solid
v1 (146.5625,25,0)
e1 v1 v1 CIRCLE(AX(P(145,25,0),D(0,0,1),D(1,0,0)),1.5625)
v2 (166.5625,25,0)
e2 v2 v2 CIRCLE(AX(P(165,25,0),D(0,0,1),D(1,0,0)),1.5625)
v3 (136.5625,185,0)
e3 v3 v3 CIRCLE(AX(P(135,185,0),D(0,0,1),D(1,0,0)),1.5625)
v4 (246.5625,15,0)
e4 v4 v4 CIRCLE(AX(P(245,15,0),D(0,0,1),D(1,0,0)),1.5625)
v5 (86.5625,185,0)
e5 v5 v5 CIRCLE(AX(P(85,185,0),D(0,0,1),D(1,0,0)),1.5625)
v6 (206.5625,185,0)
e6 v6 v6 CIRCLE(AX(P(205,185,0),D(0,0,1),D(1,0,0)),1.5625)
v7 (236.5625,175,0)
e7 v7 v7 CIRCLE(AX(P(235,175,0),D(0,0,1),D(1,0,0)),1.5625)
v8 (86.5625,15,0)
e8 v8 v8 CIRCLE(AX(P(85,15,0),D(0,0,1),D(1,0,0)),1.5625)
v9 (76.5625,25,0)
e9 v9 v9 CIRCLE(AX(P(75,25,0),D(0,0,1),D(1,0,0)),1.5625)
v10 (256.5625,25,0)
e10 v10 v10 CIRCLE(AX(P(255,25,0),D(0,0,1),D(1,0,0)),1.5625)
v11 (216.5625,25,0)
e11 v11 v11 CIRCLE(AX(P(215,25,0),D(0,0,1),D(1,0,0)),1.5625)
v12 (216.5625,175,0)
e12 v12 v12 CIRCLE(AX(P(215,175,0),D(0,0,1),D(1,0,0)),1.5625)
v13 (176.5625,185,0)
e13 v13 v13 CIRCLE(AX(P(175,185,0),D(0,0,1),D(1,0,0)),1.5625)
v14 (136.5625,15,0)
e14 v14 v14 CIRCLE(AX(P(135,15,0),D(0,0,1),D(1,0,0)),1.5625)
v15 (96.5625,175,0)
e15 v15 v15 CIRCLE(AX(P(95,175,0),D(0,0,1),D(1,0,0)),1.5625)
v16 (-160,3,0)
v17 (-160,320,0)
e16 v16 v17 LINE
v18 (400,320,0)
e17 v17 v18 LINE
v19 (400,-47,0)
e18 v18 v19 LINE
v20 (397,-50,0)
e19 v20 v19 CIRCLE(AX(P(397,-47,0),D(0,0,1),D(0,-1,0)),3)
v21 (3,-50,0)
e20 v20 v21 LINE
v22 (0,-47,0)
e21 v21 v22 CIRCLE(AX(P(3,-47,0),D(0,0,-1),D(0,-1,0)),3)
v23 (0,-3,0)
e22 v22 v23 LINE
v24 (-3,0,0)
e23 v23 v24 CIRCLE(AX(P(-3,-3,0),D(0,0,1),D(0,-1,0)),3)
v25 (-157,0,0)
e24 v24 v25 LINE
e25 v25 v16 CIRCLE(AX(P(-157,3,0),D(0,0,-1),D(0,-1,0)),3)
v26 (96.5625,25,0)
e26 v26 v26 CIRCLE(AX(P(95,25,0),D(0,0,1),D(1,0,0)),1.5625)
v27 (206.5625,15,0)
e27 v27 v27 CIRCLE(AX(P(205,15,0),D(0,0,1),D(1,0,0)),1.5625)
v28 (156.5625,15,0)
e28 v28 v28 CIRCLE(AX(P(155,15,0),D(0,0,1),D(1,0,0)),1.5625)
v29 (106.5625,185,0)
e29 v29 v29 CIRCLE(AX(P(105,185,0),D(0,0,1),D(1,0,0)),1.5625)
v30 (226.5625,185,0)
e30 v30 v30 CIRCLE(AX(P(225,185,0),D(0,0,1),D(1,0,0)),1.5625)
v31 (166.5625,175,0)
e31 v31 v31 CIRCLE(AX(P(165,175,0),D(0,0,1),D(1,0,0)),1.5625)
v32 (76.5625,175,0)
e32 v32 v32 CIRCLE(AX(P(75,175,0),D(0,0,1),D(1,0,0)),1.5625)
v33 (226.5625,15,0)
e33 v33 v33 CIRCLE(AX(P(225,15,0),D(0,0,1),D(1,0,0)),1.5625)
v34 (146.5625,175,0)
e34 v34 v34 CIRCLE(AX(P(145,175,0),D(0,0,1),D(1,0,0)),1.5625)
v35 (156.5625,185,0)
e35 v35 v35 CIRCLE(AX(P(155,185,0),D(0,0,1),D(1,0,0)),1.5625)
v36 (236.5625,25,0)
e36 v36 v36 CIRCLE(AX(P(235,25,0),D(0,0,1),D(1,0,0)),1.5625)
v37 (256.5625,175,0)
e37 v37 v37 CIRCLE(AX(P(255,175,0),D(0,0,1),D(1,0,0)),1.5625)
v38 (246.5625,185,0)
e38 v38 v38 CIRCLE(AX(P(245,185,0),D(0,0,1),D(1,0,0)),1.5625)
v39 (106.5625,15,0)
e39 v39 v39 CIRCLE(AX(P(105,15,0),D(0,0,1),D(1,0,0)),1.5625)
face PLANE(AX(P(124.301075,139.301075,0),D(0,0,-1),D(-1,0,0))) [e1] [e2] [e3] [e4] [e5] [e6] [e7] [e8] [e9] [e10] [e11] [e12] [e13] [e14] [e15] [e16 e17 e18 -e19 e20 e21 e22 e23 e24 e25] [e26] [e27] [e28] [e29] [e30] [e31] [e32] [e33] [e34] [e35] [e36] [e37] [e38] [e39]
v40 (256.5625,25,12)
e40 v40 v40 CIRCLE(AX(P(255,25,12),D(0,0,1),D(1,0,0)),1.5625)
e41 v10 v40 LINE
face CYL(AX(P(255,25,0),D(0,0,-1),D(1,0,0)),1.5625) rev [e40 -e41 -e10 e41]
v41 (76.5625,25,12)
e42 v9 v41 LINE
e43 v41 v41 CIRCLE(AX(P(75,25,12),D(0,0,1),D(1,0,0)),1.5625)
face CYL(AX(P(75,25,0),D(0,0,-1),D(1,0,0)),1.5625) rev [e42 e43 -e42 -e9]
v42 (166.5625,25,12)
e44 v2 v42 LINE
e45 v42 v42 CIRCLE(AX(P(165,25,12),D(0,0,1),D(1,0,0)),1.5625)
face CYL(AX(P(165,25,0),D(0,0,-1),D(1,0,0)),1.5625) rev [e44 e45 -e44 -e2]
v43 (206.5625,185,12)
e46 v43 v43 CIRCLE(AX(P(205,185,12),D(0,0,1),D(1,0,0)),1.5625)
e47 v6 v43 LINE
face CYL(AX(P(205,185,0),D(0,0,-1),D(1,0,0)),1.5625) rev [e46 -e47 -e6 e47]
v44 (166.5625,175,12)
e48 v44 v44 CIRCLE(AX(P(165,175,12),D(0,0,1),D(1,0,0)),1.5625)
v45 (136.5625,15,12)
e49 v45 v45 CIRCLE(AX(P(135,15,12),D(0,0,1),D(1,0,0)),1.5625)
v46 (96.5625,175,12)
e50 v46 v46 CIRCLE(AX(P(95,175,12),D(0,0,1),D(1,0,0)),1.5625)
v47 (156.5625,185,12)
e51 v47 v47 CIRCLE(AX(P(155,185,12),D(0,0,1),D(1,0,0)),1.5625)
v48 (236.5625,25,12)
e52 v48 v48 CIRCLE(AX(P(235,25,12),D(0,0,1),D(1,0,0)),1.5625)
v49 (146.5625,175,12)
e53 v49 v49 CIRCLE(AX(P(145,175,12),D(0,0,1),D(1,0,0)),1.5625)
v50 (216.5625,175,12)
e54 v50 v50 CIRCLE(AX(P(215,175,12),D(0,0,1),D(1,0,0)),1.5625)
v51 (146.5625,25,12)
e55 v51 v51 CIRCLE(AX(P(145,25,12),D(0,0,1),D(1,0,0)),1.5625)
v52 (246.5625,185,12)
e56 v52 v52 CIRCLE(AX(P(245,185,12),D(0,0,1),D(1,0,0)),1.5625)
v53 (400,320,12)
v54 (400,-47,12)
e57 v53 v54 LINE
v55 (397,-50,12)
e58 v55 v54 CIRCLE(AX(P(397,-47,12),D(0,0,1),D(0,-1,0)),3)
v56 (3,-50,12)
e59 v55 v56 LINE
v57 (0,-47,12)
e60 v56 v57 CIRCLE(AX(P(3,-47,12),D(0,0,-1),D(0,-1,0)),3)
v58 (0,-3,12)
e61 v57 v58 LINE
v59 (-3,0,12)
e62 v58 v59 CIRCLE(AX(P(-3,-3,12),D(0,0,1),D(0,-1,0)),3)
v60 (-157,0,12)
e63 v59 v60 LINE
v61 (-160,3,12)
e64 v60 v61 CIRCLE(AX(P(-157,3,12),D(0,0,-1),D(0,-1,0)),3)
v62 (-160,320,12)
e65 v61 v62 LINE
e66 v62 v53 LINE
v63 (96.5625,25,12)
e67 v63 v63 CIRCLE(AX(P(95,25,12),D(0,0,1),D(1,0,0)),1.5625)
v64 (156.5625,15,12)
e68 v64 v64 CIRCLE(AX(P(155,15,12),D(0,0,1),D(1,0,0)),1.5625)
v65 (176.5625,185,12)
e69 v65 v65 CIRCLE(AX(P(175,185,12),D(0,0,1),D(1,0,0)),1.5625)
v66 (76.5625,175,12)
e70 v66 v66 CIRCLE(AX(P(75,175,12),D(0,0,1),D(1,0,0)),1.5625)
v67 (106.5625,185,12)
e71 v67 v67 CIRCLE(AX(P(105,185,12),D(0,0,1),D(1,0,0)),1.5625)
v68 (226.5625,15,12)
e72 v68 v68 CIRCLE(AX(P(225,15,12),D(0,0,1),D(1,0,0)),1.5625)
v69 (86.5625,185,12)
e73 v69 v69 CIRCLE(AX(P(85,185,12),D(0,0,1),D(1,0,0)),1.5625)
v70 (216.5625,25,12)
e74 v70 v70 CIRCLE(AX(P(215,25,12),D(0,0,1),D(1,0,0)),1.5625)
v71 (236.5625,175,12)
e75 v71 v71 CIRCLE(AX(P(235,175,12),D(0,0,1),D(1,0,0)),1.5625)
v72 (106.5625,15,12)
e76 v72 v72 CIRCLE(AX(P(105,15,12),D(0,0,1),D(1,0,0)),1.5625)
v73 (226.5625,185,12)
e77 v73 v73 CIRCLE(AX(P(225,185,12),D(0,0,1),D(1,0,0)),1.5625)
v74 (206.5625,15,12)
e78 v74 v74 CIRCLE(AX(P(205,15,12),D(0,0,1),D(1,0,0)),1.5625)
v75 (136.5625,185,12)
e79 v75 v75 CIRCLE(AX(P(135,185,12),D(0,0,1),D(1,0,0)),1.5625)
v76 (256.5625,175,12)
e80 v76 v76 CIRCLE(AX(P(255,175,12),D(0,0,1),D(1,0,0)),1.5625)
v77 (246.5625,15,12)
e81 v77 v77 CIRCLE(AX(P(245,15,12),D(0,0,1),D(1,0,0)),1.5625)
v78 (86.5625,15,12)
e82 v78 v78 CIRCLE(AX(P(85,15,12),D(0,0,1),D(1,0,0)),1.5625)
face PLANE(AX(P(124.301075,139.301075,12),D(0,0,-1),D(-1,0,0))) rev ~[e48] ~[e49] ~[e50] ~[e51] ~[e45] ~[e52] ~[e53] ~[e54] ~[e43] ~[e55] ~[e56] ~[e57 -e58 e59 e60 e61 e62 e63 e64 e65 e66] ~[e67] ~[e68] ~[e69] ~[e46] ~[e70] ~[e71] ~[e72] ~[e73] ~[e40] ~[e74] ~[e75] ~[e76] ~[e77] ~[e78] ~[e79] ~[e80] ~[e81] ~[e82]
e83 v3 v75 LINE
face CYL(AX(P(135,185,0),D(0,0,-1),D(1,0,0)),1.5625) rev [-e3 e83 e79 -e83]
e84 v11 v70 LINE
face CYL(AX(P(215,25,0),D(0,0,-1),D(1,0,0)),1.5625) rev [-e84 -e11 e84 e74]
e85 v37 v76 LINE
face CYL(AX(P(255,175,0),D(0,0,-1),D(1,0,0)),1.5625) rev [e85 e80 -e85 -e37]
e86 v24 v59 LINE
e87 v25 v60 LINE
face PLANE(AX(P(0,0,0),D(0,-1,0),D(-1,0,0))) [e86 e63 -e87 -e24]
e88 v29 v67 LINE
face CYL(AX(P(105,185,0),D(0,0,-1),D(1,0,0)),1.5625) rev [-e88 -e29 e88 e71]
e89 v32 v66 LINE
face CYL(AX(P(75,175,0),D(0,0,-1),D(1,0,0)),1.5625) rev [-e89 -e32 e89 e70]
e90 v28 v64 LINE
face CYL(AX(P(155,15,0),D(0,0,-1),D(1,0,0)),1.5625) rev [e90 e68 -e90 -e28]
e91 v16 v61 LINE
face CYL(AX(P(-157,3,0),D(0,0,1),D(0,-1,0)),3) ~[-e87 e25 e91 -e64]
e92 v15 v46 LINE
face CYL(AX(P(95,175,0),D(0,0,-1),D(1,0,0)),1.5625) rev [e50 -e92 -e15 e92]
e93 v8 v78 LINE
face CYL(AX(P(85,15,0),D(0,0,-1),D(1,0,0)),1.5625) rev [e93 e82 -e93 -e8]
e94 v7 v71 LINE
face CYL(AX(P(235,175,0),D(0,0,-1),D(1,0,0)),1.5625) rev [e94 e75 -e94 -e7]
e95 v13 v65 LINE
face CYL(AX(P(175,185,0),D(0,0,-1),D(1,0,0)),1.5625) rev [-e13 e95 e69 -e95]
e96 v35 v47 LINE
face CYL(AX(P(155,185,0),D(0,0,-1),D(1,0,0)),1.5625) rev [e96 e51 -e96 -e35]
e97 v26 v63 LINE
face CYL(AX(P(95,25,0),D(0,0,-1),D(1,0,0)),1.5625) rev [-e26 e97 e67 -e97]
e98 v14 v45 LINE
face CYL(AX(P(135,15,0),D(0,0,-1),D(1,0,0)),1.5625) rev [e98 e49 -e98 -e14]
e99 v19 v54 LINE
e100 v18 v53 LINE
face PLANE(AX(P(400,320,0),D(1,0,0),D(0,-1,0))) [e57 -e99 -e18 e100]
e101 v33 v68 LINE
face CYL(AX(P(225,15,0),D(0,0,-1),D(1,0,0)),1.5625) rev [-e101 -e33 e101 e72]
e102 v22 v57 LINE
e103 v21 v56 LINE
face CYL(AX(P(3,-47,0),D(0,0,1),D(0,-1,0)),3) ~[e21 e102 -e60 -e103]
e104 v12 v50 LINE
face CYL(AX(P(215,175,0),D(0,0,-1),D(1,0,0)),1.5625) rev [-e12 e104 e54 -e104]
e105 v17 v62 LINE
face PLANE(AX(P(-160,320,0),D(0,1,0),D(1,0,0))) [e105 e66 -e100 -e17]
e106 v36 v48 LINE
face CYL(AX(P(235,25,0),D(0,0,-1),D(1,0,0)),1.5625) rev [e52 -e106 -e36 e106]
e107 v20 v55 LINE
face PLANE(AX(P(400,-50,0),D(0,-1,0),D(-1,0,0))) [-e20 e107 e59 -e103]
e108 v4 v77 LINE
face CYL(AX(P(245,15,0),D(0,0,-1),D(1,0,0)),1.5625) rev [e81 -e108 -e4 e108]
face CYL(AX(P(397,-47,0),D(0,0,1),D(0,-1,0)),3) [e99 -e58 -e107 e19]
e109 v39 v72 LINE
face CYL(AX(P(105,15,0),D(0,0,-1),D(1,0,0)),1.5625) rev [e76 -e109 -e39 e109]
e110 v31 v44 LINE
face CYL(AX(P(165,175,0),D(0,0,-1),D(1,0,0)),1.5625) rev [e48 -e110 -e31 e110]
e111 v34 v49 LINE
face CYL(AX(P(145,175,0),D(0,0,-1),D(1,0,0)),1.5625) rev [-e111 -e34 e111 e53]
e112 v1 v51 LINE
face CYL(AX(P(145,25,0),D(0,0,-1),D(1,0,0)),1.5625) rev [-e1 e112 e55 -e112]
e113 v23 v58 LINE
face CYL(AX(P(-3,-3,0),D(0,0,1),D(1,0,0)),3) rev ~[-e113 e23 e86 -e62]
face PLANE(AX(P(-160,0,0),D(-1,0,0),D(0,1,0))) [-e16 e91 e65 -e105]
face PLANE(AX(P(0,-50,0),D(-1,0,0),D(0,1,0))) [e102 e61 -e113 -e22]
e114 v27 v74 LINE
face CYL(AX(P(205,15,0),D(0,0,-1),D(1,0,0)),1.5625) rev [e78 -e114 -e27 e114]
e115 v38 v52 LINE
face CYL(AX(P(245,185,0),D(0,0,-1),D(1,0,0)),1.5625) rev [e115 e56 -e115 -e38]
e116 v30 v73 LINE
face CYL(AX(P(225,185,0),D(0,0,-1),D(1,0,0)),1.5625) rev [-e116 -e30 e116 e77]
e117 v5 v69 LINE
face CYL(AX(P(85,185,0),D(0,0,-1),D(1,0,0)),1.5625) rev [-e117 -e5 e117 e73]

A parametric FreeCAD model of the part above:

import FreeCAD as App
import Part
import Sketcher
from FreeCAD import Vector


def edges_at(feature, points):
    """Names of the edges that pass closest to the given points."""
    edges = feature.Shape.Edges
    near = lambda p: min(range(len(edges)), key=lambda i: edges[i].distToShape(Part.Vertex(*p))[0])
    return sorted({f"Edge{near(p) + 1}" for p in points})


def add_polygon(sketch, points):
    """Adds a closed chain of lines whose ends are joined by coincident constraints."""
    first, n = sketch.GeometryCount, len(points)
    for a, b in zip(points, points[1:] + points[:1]):
        sketch.addGeometry(Part.LineSegment(App.Vector(*a, 0), App.Vector(*b, 0)), False)
    for i in range(n):
        sketch.addConstraint(Sketcher.Constraint("Coincident", first + i, 2, first + (i + 1) % n, 1))

doc = App.newDocument("Part")
body = doc.addObject("PartDesign::Body", "Body")

sketch1 = body.newObject("Sketcher::SketchObject", "Sketch")
sketch1.AttachmentSupport = (doc.getObject("XY_Plane"), [""])
sketch1.MapMode = "FlatFace"
add_polygon(sketch1, [(0, -50), (400, -50), (400, 320), (-160, 320), (-160, 0), (0, 0)])
sketch1.addGeometry(Part.Circle(Vector(245, 15, 0), Vector(0, 0, 1), 1.6), False)
sketch1.addGeometry(Part.Circle(Vector(255, 25, 0), Vector(0, 0, 1), 1.6), False)
sketch1.addGeometry(Part.Circle(Vector(235, 25, 0), Vector(0, 0, 1), 1.6), False)
sketch1.addGeometry(Part.Circle(Vector(225, 15, 0), Vector(0, 0, 1), 1.6), False)
sketch1.addGeometry(Part.Circle(Vector(215, 25, 0), Vector(0, 0, 1), 1.6), False)
sketch1.addGeometry(Part.Circle(Vector(205, 15, 0), Vector(0, 0, 1), 1.6), False)
sketch1.addGeometry(Part.Circle(Vector(165, 25, 0), Vector(0, 0, 1), 1.6), False)
sketch1.addGeometry(Part.Circle(Vector(155, 15, 0), Vector(0, 0, 1), 1.6), False)
sketch1.addGeometry(Part.Circle(Vector(145, 25, 0), Vector(0, 0, 1), 1.6), False)
sketch1.addGeometry(Part.Circle(Vector(135, 15, 0), Vector(0, 0, 1), 1.6), False)
sketch1.addGeometry(Part.Circle(Vector(105, 15, 0), Vector(0, 0, 1), 1.6), False)
sketch1.addGeometry(Part.Circle(Vector(85, 15, 0), Vector(0, 0, 1), 1.6), False)
sketch1.addGeometry(Part.Circle(Vector(95, 25, 0), Vector(0, 0, 1), 1.6), False)
sketch1.addGeometry(Part.Circle(Vector(75, 25, 0), Vector(0, 0, 1), 1.6), False)
sketch1.addGeometry(Part.Circle(Vector(255, 175, 0), Vector(0, 0, 1), 1.6), False)
sketch1.addGeometry(Part.Circle(Vector(235, 175, 0), Vector(0, 0, 1), 1.6), False)
sketch1.addGeometry(Part.Circle(Vector(245, 185, 0), Vector(0, 0, 1), 1.6), False)
sketch1.addGeometry(Part.Circle(Vector(215, 175, 0), Vector(0, 0, 1), 1.6), False)
sketch1.addGeometry(Part.Circle(Vector(225, 185, 0), Vector(0, 0, 1), 1.6), False)
sketch1.addGeometry(Part.Circle(Vector(205, 185, 0), Vector(0, 0, 1), 1.6), False)
sketch1.addGeometry(Part.Circle(Vector(165, 175, 0), Vector(0, 0, 1), 1.6), False)
sketch1.addGeometry(Part.Circle(Vector(175, 185, 0), Vector(0, 0, 1), 1.6), False)
sketch1.addGeometry(Part.Circle(Vector(145, 175, 0), Vector(0, 0, 1), 1.6), False)
sketch1.addGeometry(Part.Circle(Vector(155, 185, 0), Vector(0, 0, 1), 1.6), False)
sketch1.addGeometry(Part.Circle(Vector(135, 185, 0), Vector(0, 0, 1), 1.6), False)
sketch1.addGeometry(Part.Circle(Vector(105, 185, 0), Vector(0, 0, 1), 1.6), False)
sketch1.addGeometry(Part.Circle(Vector(95, 175, 0), Vector(0, 0, 1), 1.6), False)
sketch1.addGeometry(Part.Circle(Vector(75, 175, 0), Vector(0, 0, 1), 1.6), False)
sketch1.addGeometry(Part.Circle(Vector(85, 185, 0), Vector(0, 0, 1), 1.6), False)
sketch1.addConstraint(Sketcher.Constraint("Horizontal", 0))
sketch1.addConstraint(Sketcher.Constraint("Vertical", 1))
sketch1.addConstraint(Sketcher.Constraint("Horizontal", 2))
sketch1.addConstraint(Sketcher.Constraint("Vertical", 3))
sketch1.addConstraint(Sketcher.Constraint("Horizontal", 4))
sketch1.addConstraint(Sketcher.Constraint("Vertical", 5))
sketch1.addConstraint(Sketcher.Constraint("Coincident", 4, 2, -1, 1))
sketch1.addConstraint(Sketcher.Constraint("Equal", 6, 7))
sketch1.addConstraint(Sketcher.Constraint("Equal", 7, 8))
sketch1.addConstraint(Sketcher.Constraint("Equal", 8, 9))
sketch1.addConstraint(Sketcher.Constraint("Equal", 9, 10))
sketch1.addConstraint(Sketcher.Constraint("Equal", 10, 11))
sketch1.addConstraint(Sketcher.Constraint("Equal", 11, 12))
sketch1.addConstraint(Sketcher.Constraint("Equal", 12, 13))
sketch1.addConstraint(Sketcher.Constraint("Equal", 13, 14))
sketch1.addConstraint(Sketcher.Constraint("Equal", 14, 15))
sketch1.addConstraint(Sketcher.Constraint("Equal", 15, 16))
sketch1.addConstraint(Sketcher.Constraint("Equal", 16, 17))
sketch1.addConstraint(Sketcher.Constraint("Equal", 17, 18))
sketch1.addConstraint(Sketcher.Constraint("Equal", 18, 19))
sketch1.addConstraint(Sketcher.Constraint("Equal", 19, 20))
sketch1.addConstraint(Sketcher.Constraint("Equal", 20, 21))
sketch1.addConstraint(Sketcher.Constraint("Equal", 21, 22))
sketch1.addConstraint(Sketcher.Constraint("Equal", 22, 23))
sketch1.addConstraint(Sketcher.Constraint("Equal", 23, 24))
sketch1.addConstraint(Sketcher.Constraint("Equal", 24, 25))
sketch1.addConstraint(Sketcher.Constraint("Equal", 25, 26))
sketch1.addConstraint(Sketcher.Constraint("Equal", 26, 27))
sketch1.addConstraint(Sketcher.Constraint("Equal", 27, 28))
sketch1.addConstraint(Sketcher.Constraint("Equal", 28, 29))
sketch1.addConstraint(Sketcher.Constraint("Equal", 29, 30))
sketch1.addConstraint(Sketcher.Constraint("Equal", 30, 31))
sketch1.addConstraint(Sketcher.Constraint("Equal", 31, 32))
sketch1.addConstraint(Sketcher.Constraint("Equal", 32, 33))
sketch1.addConstraint(Sketcher.Constraint("Equal", 33, 34))
sketch1.addConstraint(Sketcher.Constraint("Horizontal", 7, 3, 8, 3))
sketch1.addConstraint(Sketcher.Constraint("Horizontal", 6, 3, 9, 3))
sketch1.addConstraint(Sketcher.Constraint("Horizontal", 8, 3, 10, 3))
sketch1.addConstraint(Sketcher.Constraint("Horizontal", 9, 3, 11, 3))
sketch1.addConstraint(Sketcher.Constraint("Horizontal", 10, 3, 12, 3))
sketch1.addConstraint(Sketcher.Constraint("Horizontal", 11, 3, 13, 3))
sketch1.addConstraint(Sketcher.Constraint("Horizontal", 12, 3, 14, 3))
sketch1.addConstraint(Sketcher.Constraint("Horizontal", 13, 3, 15, 3))
sketch1.addConstraint(Sketcher.Constraint("Horizontal", 15, 3, 16, 3))
sketch1.addConstraint(Sketcher.Constraint("Horizontal", 16, 3, 17, 3))
sketch1.addConstraint(Sketcher.Constraint("Horizontal", 14, 3, 18, 3))
sketch1.addConstraint(Sketcher.Constraint("Horizontal", 18, 3, 19, 3))
sketch1.addConstraint(Sketcher.Constraint("Horizontal", 20, 3, 21, 3))
sketch1.addConstraint(Sketcher.Constraint("Horizontal", 21, 3, 23, 3))
sketch1.addConstraint(Sketcher.Constraint("Horizontal", 22, 3, 24, 3))
sketch1.addConstraint(Sketcher.Constraint("Horizontal", 24, 3, 25, 3))
sketch1.addConstraint(Sketcher.Constraint("Horizontal", 23, 3, 26, 3))
sketch1.addConstraint(Sketcher.Constraint("Horizontal", 25, 3, 27, 3))
sketch1.addConstraint(Sketcher.Constraint("Horizontal", 26, 3, 28, 3))
sketch1.addConstraint(Sketcher.Constraint("Horizontal", 27, 3, 29, 3))
sketch1.addConstraint(Sketcher.Constraint("Horizontal", 29, 3, 30, 3))
sketch1.addConstraint(Sketcher.Constraint("Horizontal", 30, 3, 31, 3))
sketch1.addConstraint(Sketcher.Constraint("Horizontal", 28, 3, 32, 3))
sketch1.addConstraint(Sketcher.Constraint("Horizontal", 32, 3, 33, 3))
sketch1.addConstraint(Sketcher.Constraint("Horizontal", 31, 3, 34, 3))
sketch1.addConstraint(Sketcher.Constraint("Vertical", 7, 3, 20, 3))
sketch1.addConstraint(Sketcher.Constraint("Vertical", 8, 3, 21, 3))
sketch1.addConstraint(Sketcher.Constraint("Vertical", 6, 3, 22, 3))
sketch1.addConstraint(Sketcher.Constraint("Vertical", 10, 3, 23, 3))
sketch1.addConstraint(Sketcher.Constraint("Vertical", 9, 3, 24, 3))
sketch1.addConstraint(Sketcher.Constraint("Vertical", 11, 3, 25, 3))
sketch1.addConstraint(Sketcher.Constraint("Vertical", 12, 3, 26, 3))
sketch1.addConstraint(Sketcher.Constraint("Vertical", 14, 3, 28, 3))
sketch1.addConstraint(Sketcher.Constraint("Vertical", 13, 3, 29, 3))
sketch1.addConstraint(Sketcher.Constraint("Vertical", 15, 3, 30, 3))
sketch1.addConstraint(Sketcher.Constraint("Vertical", 16, 3, 31, 3))
sketch1.addConstraint(Sketcher.Constraint("Vertical", 18, 3, 32, 3))
sketch1.addConstraint(Sketcher.Constraint("Vertical", 19, 3, 33, 3))
sketch1.addConstraint(Sketcher.Constraint("Vertical", 17, 3, 34, 3))
sketch1.addConstraint(Sketcher.Constraint("DistanceX", 0, 1, 0, 2, 400.0))
sketch1.addConstraint(Sketcher.Constraint("DistanceX", 2, 2, 2, 1, 560.0))
sketch1.addConstraint(Sketcher.Constraint("DistanceY", 1, 1, 1, 2, 370.0))
sketch1.addConstraint(Sketcher.Constraint("DistanceY", 3, 2, 3, 1, 320.0))
sketch1.addConstraint(Sketcher.Constraint("Diameter", 6, 3.125))
sketch1.addConstraint(Sketcher.Constraint("DistanceX", -1, 1, 6, 3, 245.0))
sketch1.addConstraint(Sketcher.Constraint("DistanceY", -1, 1, 6, 3, 15.0))
sketch1.addConstraint(Sketcher.Constraint("DistanceX", -1, 1, 7, 3, 255.0))
sketch1.addConstraint(Sketcher.Constraint("DistanceY", -1, 1, 7, 3, 25.0))
sketch1.addConstraint(Sketcher.Constraint("DistanceX", -1, 1, 8, 3, 235.0))
sketch1.addConstraint(Sketcher.Constraint("DistanceX", -1, 1, 9, 3, 225.0))
sketch1.addConstraint(Sketcher.Constraint("DistanceX", -1, 1, 10, 3, 215.0))
sketch1.addConstraint(Sketcher.Constraint("DistanceX", -1, 1, 11, 3, 205.0))
sketch1.addConstraint(Sketcher.Constraint("DistanceX", -1, 1, 12, 3, 165.0))
sketch1.addConstraint(Sketcher.Constraint("DistanceX", -1, 1, 13, 3, 155.0))
sketch1.addConstraint(Sketcher.Constraint("DistanceX", -1, 1, 14, 3, 145.0))
sketch1.addConstraint(Sketcher.Constraint("DistanceX", -1, 1, 15, 3, 135.0))
sketch1.addConstraint(Sketcher.Constraint("DistanceX", -1, 1, 16, 3, 105.0))
sketch1.addConstraint(Sketcher.Constraint("DistanceX", -1, 1, 17, 3, 85.0))
sketch1.addConstraint(Sketcher.Constraint("DistanceX", -1, 1, 18, 3, 95.0))
sketch1.addConstraint(Sketcher.Constraint("DistanceX", -1, 1, 19, 3, 75.0))
sketch1.addConstraint(Sketcher.Constraint("DistanceY", -1, 1, 20, 3, 175.0))
sketch1.addConstraint(Sketcher.Constraint("DistanceY", -1, 1, 22, 3, 185.0))
sketch1.addConstraint(Sketcher.Constraint("DistanceX", -1, 1, 27, 3, 175.0))
pad1 = body.newObject("PartDesign::Pad", "Pad")
pad1.Profile = sketch1
pad1.Length = 12
doc.recompute()

fillet = body.newObject("PartDesign::Fillet", "Fillet")
fillet.Base = (pad1, edges_at(pad1, [
    (400, -50, 6),
    (0, -50, 6),
    (0, 0, 6),
    (-160, 0, 6),
]))
fillet.Radius = 3

doc.recompute()
